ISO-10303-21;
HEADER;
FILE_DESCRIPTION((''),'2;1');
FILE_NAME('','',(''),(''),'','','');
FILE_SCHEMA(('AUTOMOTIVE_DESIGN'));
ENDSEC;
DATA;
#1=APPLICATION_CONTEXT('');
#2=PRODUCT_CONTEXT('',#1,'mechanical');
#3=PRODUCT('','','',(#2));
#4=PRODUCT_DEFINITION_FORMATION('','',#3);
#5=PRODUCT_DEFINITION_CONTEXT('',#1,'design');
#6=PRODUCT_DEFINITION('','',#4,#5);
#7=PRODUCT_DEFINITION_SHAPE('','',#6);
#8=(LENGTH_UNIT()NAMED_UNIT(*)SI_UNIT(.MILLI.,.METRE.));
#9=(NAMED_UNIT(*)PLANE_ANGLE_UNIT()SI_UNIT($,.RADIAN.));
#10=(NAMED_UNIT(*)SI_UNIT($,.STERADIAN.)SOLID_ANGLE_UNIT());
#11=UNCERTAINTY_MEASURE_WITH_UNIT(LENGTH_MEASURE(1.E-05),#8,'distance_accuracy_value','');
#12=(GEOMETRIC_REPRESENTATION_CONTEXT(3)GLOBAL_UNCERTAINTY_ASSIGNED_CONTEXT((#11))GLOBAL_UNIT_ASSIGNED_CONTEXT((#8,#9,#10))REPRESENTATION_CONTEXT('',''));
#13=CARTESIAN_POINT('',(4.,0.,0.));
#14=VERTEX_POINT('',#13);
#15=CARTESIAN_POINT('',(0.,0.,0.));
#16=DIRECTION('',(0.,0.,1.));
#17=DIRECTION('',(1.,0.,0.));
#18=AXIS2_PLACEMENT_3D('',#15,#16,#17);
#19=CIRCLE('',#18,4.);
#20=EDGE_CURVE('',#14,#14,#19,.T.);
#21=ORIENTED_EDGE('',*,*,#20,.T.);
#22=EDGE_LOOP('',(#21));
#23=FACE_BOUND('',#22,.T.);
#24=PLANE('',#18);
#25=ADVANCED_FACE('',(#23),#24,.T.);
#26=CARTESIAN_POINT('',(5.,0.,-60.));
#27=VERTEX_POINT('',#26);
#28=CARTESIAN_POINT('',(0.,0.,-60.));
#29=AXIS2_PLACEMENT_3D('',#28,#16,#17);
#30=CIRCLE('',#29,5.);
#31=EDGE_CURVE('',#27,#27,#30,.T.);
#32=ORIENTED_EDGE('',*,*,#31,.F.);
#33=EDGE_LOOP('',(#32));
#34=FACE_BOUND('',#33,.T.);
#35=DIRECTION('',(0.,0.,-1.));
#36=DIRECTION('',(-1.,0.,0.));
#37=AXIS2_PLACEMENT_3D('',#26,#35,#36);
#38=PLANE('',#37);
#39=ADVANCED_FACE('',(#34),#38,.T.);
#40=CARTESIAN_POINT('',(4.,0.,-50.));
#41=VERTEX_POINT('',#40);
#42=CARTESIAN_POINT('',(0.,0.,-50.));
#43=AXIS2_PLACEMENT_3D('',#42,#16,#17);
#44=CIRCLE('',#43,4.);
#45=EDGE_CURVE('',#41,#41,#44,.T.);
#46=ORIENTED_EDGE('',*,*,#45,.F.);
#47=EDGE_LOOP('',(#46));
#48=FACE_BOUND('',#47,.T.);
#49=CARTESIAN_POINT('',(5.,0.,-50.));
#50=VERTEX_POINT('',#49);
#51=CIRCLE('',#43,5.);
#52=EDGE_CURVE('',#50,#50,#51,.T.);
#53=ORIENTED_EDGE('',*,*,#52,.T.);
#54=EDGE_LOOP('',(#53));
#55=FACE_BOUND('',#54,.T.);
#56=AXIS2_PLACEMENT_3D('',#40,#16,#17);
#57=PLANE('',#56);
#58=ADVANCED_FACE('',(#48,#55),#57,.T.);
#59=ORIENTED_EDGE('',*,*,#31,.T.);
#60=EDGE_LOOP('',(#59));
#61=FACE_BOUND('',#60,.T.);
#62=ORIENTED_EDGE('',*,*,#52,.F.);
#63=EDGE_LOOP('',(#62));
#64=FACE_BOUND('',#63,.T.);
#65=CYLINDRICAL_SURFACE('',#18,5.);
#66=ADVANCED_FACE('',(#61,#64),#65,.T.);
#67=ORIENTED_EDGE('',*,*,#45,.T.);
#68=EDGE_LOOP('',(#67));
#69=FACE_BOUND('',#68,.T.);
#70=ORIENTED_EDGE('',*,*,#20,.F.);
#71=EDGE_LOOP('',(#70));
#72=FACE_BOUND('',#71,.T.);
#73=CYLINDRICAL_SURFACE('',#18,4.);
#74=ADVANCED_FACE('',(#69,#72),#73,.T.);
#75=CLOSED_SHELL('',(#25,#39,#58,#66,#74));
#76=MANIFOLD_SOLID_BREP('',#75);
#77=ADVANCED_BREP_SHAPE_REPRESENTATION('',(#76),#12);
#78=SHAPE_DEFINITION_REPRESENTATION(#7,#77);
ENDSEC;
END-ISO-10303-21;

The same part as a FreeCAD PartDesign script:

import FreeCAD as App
import Part
import Sketcher
from FreeCAD import Vector
Q = App.Units.Quantity

doc = App.newDocument("Part")
params = doc.addObject("Spreadsheet::Sheet", "Params")
for row, (alias, value) in enumerate([
    ("sketch1_width", "4 mm"),
    ("sketch1_width2", "1 mm"),
    ("sketch1_height", "50 mm"),
    ("sketch1_height2", "10 mm"),
    ("revolution_angle", "360 deg"),
], start=1):
    params.set(f"A{row}", alias)
    params.set(f"B{row}", "=" + value)
    params.setAlias(f"B{row}", alias)

body = doc.addObject("PartDesign::Body", "Body")

sketch1 = body.newObject("Sketcher::SketchObject", "Sketch")
sketch1.AttachmentSupport = (doc.getObject("XZ_Plane"), [""])
sketch1.MapMode = "FlatFace"
sketch1.addGeometry([
    Part.LineSegment(Vector(0, 0, 0), Vector(4, 0, 0)),
    Part.LineSegment(Vector(4, 0, 0), Vector(4, -50, 0)),
    Part.LineSegment(Vector(4, -50, 0), Vector(5, -50, 0)),
    Part.LineSegment(Vector(5, -50, 0), Vector(5, -60, 0)),
    Part.LineSegment(Vector(5, -60, 0), Vector(0, -60, 0)),
    Part.LineSegment(Vector(0, -60, 0), Vector(0, 0, 0)),
], False)
sketch1.addConstraint([
    Sketcher.Constraint("Coincident", 0, 2, 1, 1),
    Sketcher.Constraint("Coincident", 1, 2, 2, 1),
    Sketcher.Constraint("Coincident", 2, 2, 3, 1),
    Sketcher.Constraint("Coincident", 3, 2, 4, 1),
    Sketcher.Constraint("Coincident", 4, 2, 5, 1),
    Sketcher.Constraint("Coincident", 5, 2, 0, 1),
    Sketcher.Constraint("Horizontal", 0),
    Sketcher.Constraint("Vertical", 1),
    Sketcher.Constraint("Horizontal", 2),
    Sketcher.Constraint("Vertical", 3),
    Sketcher.Constraint("Horizontal", 4),
    Sketcher.Constraint("Vertical", 5),
    Sketcher.Constraint("Coincident", 5, 2, -1, 1),
    Sketcher.Constraint("DistanceX", 0, 1, 0, 2, Q("4 mm")),
    Sketcher.Constraint("DistanceX", 2, 1, 2, 2, Q("1 mm")),
    Sketcher.Constraint("DistanceY", 1, 2, 1, 1, Q("50 mm")),
    Sketcher.Constraint("DistanceY", 3, 2, 3, 1, Q("10 mm")),
])
sketch1.setExpression("Constraints[13]", "Params.sketch1_width")
sketch1.setExpression("Constraints[14]", "Params.sketch1_width2")
sketch1.setExpression("Constraints[15]", "Params.sketch1_height")
sketch1.setExpression("Constraints[16]", "Params.sketch1_height2")
revolution = body.newObject("PartDesign::Revolution", "Revolution")
revolution.Profile = sketch1
revolution.ReferenceAxis = (sketch1, ["V_Axis"])
revolution.setExpression("Angle", "Params.revolution_angle")

doc.recompute()
